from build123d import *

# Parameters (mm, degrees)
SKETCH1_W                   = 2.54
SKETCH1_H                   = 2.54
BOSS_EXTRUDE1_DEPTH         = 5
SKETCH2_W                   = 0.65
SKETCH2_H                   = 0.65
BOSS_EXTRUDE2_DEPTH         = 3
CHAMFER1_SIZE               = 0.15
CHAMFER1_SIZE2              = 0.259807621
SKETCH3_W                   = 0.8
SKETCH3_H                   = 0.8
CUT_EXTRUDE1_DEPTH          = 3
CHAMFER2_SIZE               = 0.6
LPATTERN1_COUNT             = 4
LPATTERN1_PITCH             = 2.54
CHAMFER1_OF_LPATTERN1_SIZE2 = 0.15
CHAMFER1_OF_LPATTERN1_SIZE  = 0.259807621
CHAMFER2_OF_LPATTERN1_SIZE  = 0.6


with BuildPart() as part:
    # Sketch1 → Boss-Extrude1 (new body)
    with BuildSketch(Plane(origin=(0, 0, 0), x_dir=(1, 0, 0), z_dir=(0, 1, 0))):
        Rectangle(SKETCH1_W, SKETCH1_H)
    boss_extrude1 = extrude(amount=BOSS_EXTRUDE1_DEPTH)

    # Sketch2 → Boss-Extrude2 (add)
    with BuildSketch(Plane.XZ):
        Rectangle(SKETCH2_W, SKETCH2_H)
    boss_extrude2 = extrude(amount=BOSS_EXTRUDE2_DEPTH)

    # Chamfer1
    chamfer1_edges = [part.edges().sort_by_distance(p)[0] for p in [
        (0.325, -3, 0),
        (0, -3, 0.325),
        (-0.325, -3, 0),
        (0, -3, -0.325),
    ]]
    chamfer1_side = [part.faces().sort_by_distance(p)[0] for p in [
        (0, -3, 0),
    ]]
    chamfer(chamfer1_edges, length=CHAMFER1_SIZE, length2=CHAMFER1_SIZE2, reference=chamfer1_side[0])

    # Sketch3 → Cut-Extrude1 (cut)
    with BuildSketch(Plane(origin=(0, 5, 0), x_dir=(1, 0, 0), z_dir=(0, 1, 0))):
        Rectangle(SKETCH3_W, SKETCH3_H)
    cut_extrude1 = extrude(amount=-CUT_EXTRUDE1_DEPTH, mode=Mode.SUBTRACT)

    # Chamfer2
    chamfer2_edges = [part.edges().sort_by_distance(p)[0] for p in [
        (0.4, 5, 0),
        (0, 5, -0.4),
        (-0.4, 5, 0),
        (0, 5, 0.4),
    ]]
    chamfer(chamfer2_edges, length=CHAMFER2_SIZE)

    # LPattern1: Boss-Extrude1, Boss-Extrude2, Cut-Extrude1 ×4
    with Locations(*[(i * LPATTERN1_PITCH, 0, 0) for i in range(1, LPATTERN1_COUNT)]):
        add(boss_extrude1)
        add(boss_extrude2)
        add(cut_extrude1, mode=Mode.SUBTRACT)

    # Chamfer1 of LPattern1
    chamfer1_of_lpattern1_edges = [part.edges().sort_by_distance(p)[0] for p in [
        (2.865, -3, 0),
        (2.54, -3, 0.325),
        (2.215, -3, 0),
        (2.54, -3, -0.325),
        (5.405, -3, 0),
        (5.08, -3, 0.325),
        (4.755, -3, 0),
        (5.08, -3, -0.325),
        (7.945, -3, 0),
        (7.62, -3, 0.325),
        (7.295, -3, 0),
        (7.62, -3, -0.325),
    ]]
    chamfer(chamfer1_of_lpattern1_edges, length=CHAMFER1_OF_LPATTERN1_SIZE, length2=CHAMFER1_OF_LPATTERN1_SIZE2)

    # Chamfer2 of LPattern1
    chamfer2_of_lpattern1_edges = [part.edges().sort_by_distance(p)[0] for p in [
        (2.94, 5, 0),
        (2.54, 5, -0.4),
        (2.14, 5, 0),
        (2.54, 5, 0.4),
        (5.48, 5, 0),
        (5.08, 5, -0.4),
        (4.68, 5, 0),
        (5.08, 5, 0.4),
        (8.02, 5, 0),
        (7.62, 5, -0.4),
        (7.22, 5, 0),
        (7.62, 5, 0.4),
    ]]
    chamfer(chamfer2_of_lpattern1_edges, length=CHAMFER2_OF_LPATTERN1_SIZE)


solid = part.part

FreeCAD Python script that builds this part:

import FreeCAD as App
import Part
import Sketcher


def edges_at(feature, points):
    """Names of the edges that pass closest to the given points."""
    edges = feature.Shape.Edges
    near = lambda p: min(range(len(edges)), key=lambda i: edges[i].distToShape(Part.Vertex(*p))[0])
    return sorted({f"Edge{near(p) + 1}" for p in points})

doc = App.newDocument("Part")
body = doc.addObject("PartDesign::Body", "Body")

# Sketch on XZ plane
sketch1 = body.newObject("Sketcher::SketchObject", "Sketch")
sketch1.AttachmentSupport = (doc.getObject("XZ_Plane"), [""])
sketch1.MapMode = "FlatFace"
sketch1.addGeometry(Part.LineSegment(App.Vector(-1.3, -1.3, 0), App.Vector(-1.3, 1.3, 0)), False)
sketch1.addGeometry(Part.LineSegment(App.Vector(-1.3, 1.3, 0), App.Vector(1.3, 1.3, 0)), False)
sketch1.addGeometry(Part.LineSegment(App.Vector(1.3, 1.3, 0), App.Vector(1.3, -1.3, 0)), False)
sketch1.addGeometry(Part.LineSegment(App.Vector(1.3, -1.3, 0), App.Vector(-1.3, -1.3, 0)), False)
sketch1.addConstraint(Sketcher.Constraint("Coincident", 0, 2, 1, 1))
sketch1.addConstraint(Sketcher.Constraint("Coincident", 1, 2, 2, 1))
sketch1.addConstraint(Sketcher.Constraint("Coincident", 2, 2, 3, 1))
sketch1.addConstraint(Sketcher.Constraint("Coincident", 3, 2, 0, 1))
sketch1.addConstraint(Sketcher.Constraint("Vertical", 0))
sketch1.addConstraint(Sketcher.Constraint("Horizontal", 1))
sketch1.addConstraint(Sketcher.Constraint("Vertical", 2))
sketch1.addConstraint(Sketcher.Constraint("Horizontal", 3))
sketch1.addConstraint(Sketcher.Constraint("Symmetric", 0, 2, 2, 2, -1, 1))
sketch1.addConstraint(Sketcher.Constraint("Equal", 3, 0))
sketch1.addConstraint(Sketcher.Constraint("DistanceX", 1, 1, 1, 2, 2.54))
pad1 = body.newObject("PartDesign::Pad", "Pad")
pad1.Profile = sketch1
pad1.Length = 5
pad1.Reversed = True

# Sketch on XZ plane
sketch2 = body.newObject("Sketcher::SketchObject", "Sketch001")
sketch2.AttachmentSupport = (doc.getObject("XZ_Plane"), [""])
sketch2.MapMode = "FlatFace"
sketch2.addGeometry(Part.LineSegment(App.Vector(-0.3, 0.3, 0), App.Vector(-0.3, -0.3, 0)), False)
sketch2.addGeometry(Part.LineSegment(App.Vector(-0.3, -0.3, 0), App.Vector(0.3, -0.3, 0)), False)
sketch2.addGeometry(Part.LineSegment(App.Vector(0.3, -0.3, 0), App.Vector(0.3, 0.3, 0)), False)
sketch2.addGeometry(Part.LineSegment(App.Vector(0.3, 0.3, 0), App.Vector(-0.3, 0.3, 0)), False)
sketch2.addConstraint(Sketcher.Constraint("Coincident", 0, 2, 1, 1))
sketch2.addConstraint(Sketcher.Constraint("Coincident", 1, 2, 2, 1))
sketch2.addConstraint(Sketcher.Constraint("Coincident", 2, 2, 3, 1))
sketch2.addConstraint(Sketcher.Constraint("Coincident", 3, 2, 0, 1))
sketch2.addConstraint(Sketcher.Constraint("Vertical", 0))
sketch2.addConstraint(Sketcher.Constraint("Horizontal", 1))
sketch2.addConstraint(Sketcher.Constraint("Vertical", 2))
sketch2.addConstraint(Sketcher.Constraint("Horizontal", 3))
sketch2.addConstraint(Sketcher.Constraint("Symmetric", 0, 2, 2, 2, -1, 1))
sketch2.addConstraint(Sketcher.Constraint("Equal", 3, 0))
sketch2.addConstraint(Sketcher.Constraint("DistanceX", 1, 1, 1, 2, 0.65))
pad2 = body.newObject("PartDesign::Pad", "Pad001")
pad2.Profile = sketch2
pad2.Length = 3
doc.recompute()

chamfer = body.newObject("PartDesign::Chamfer", "Chamfer")
chamfer.Base = (pad2, edges_at(pad2, [
    (0.325, -3, 0),
    (0, -3, 0.325),
    (-0.325, -3, 0),
    (0, -3, -0.325),
]))
chamfer.ChamferType = "Two distances"
chamfer.Size = 0.15
chamfer.Size2 = 0.259808
chamfer.FlipDirection = True

# Sketch on XZ plane
sketch3 = body.newObject("Sketcher::SketchObject", "Sketch002")
sketch3.AttachmentSupport = (doc.getObject("XZ_Plane"), [""])
sketch3.MapMode = "FlatFace"
sketch3.AttachmentOffset = App.Placement(App.Vector(0, 0, -5), App.Rotation())
sketch3.addGeometry(Part.LineSegment(App.Vector(-0.4, -0.4, 0), App.Vector(-0.4, 0.4, 0)), False)
sketch3.addGeometry(Part.LineSegment(App.Vector(-0.4, 0.4, 0), App.Vector(0.4, 0.4, 0)), False)
sketch3.addGeometry(Part.LineSegment(App.Vector(0.4, 0.4, 0), App.Vector(0.4, -0.4, 0)), False)
sketch3.addGeometry(Part.LineSegment(App.Vector(0.4, -0.4, 0), App.Vector(-0.4, -0.4, 0)), False)
sketch3.addConstraint(Sketcher.Constraint("Coincident", 0, 2, 1, 1))
sketch3.addConstraint(Sketcher.Constraint("Coincident", 1, 2, 2, 1))
sketch3.addConstraint(Sketcher.Constraint("Coincident", 2, 2, 3, 1))
sketch3.addConstraint(Sketcher.Constraint("Coincident", 3, 2, 0, 1))
sketch3.addConstraint(Sketcher.Constraint("Vertical", 0))
sketch3.addConstraint(Sketcher.Constraint("Horizontal", 1))
sketch3.addConstraint(Sketcher.Constraint("Vertical", 2))
sketch3.addConstraint(Sketcher.Constraint("Horizontal", 3))
sketch3.addConstraint(Sketcher.Constraint("Symmetric", 0, 2, 2, 2, -1, 1))
sketch3.addConstraint(Sketcher.Constraint("Equal", 3, 0))
sketch3.addConstraint(Sketcher.Constraint("DistanceX", 1, 1, 1, 2, 0.8))
pocket1 = body.newObject("PartDesign::Pocket", "Pocket")
pocket1.Profile = sketch3
pocket1.Length = 3
pocket1.Reversed = True
doc.recompute()

chamfer2 = body.newObject("PartDesign::Chamfer", "Chamfer001")
chamfer2.Base = (pocket1, edges_at(pocket1, [
    (0.4, 5, 0),
    (0, 5, -0.4),
    (-0.4, 5, 0),
    (0, 5, 0.4),
]))
chamfer2.Size = 0.6
doc.recompute()

linearpattern = body.newObject("PartDesign::LinearPattern", "LinearPattern")
linearpattern.Originals = [pad1, pad2, pocket1]
linearpattern.Direction = (doc.getObject("X_Axis"), [""])
linearpattern.Mode = "offset"
linearpattern.Offset = 2.54
linearpattern.Occurrences = 4
body.Tip = linearpattern
doc.recompute()

chamfer3 = body.newObject("PartDesign::Chamfer", "Chamfer002")
chamfer3.Base = (linearpattern, edges_at(linearpattern, [
    (2.865, -3, 0),
    (2.54, -3, 0.325),
    (2.215, -3, 0),
    (2.54, -3, -0.325),
    (5.405, -3, 0),
    (5.08, -3, 0.325),
    (4.755, -3, 0),
    (5.08, -3, -0.325),
    (7.945, -3, 0),
    (7.62, -3, 0.325),
    (7.295, -3, 0),
    (7.62, -3, -0.325),
]))
chamfer3.ChamferType = "Two distances"
chamfer3.Size = 0.259808
chamfer3.Size2 = 0.15
doc.recompute()

chamfer4 = body.newObject("PartDesign::Chamfer", "Chamfer003")
chamfer4.Base = (chamfer3, edges_at(chamfer3, [
    (2.94, 5, 0),
    (2.54, 5, -0.4),
    (2.14, 5, 0),
    (2.54, 5, 0.4),
    (5.48, 5, 0),
    (5.08, 5, -0.4),
    (4.68, 5, 0),
    (5.08, 5, 0.4),
    (8.02, 5, 0),
    (7.62, 5, -0.4),
    (7.22, 5, 0),
    (7.62, 5, 0.4),
]))
chamfer4.Size = 0.6

doc.recompute()
